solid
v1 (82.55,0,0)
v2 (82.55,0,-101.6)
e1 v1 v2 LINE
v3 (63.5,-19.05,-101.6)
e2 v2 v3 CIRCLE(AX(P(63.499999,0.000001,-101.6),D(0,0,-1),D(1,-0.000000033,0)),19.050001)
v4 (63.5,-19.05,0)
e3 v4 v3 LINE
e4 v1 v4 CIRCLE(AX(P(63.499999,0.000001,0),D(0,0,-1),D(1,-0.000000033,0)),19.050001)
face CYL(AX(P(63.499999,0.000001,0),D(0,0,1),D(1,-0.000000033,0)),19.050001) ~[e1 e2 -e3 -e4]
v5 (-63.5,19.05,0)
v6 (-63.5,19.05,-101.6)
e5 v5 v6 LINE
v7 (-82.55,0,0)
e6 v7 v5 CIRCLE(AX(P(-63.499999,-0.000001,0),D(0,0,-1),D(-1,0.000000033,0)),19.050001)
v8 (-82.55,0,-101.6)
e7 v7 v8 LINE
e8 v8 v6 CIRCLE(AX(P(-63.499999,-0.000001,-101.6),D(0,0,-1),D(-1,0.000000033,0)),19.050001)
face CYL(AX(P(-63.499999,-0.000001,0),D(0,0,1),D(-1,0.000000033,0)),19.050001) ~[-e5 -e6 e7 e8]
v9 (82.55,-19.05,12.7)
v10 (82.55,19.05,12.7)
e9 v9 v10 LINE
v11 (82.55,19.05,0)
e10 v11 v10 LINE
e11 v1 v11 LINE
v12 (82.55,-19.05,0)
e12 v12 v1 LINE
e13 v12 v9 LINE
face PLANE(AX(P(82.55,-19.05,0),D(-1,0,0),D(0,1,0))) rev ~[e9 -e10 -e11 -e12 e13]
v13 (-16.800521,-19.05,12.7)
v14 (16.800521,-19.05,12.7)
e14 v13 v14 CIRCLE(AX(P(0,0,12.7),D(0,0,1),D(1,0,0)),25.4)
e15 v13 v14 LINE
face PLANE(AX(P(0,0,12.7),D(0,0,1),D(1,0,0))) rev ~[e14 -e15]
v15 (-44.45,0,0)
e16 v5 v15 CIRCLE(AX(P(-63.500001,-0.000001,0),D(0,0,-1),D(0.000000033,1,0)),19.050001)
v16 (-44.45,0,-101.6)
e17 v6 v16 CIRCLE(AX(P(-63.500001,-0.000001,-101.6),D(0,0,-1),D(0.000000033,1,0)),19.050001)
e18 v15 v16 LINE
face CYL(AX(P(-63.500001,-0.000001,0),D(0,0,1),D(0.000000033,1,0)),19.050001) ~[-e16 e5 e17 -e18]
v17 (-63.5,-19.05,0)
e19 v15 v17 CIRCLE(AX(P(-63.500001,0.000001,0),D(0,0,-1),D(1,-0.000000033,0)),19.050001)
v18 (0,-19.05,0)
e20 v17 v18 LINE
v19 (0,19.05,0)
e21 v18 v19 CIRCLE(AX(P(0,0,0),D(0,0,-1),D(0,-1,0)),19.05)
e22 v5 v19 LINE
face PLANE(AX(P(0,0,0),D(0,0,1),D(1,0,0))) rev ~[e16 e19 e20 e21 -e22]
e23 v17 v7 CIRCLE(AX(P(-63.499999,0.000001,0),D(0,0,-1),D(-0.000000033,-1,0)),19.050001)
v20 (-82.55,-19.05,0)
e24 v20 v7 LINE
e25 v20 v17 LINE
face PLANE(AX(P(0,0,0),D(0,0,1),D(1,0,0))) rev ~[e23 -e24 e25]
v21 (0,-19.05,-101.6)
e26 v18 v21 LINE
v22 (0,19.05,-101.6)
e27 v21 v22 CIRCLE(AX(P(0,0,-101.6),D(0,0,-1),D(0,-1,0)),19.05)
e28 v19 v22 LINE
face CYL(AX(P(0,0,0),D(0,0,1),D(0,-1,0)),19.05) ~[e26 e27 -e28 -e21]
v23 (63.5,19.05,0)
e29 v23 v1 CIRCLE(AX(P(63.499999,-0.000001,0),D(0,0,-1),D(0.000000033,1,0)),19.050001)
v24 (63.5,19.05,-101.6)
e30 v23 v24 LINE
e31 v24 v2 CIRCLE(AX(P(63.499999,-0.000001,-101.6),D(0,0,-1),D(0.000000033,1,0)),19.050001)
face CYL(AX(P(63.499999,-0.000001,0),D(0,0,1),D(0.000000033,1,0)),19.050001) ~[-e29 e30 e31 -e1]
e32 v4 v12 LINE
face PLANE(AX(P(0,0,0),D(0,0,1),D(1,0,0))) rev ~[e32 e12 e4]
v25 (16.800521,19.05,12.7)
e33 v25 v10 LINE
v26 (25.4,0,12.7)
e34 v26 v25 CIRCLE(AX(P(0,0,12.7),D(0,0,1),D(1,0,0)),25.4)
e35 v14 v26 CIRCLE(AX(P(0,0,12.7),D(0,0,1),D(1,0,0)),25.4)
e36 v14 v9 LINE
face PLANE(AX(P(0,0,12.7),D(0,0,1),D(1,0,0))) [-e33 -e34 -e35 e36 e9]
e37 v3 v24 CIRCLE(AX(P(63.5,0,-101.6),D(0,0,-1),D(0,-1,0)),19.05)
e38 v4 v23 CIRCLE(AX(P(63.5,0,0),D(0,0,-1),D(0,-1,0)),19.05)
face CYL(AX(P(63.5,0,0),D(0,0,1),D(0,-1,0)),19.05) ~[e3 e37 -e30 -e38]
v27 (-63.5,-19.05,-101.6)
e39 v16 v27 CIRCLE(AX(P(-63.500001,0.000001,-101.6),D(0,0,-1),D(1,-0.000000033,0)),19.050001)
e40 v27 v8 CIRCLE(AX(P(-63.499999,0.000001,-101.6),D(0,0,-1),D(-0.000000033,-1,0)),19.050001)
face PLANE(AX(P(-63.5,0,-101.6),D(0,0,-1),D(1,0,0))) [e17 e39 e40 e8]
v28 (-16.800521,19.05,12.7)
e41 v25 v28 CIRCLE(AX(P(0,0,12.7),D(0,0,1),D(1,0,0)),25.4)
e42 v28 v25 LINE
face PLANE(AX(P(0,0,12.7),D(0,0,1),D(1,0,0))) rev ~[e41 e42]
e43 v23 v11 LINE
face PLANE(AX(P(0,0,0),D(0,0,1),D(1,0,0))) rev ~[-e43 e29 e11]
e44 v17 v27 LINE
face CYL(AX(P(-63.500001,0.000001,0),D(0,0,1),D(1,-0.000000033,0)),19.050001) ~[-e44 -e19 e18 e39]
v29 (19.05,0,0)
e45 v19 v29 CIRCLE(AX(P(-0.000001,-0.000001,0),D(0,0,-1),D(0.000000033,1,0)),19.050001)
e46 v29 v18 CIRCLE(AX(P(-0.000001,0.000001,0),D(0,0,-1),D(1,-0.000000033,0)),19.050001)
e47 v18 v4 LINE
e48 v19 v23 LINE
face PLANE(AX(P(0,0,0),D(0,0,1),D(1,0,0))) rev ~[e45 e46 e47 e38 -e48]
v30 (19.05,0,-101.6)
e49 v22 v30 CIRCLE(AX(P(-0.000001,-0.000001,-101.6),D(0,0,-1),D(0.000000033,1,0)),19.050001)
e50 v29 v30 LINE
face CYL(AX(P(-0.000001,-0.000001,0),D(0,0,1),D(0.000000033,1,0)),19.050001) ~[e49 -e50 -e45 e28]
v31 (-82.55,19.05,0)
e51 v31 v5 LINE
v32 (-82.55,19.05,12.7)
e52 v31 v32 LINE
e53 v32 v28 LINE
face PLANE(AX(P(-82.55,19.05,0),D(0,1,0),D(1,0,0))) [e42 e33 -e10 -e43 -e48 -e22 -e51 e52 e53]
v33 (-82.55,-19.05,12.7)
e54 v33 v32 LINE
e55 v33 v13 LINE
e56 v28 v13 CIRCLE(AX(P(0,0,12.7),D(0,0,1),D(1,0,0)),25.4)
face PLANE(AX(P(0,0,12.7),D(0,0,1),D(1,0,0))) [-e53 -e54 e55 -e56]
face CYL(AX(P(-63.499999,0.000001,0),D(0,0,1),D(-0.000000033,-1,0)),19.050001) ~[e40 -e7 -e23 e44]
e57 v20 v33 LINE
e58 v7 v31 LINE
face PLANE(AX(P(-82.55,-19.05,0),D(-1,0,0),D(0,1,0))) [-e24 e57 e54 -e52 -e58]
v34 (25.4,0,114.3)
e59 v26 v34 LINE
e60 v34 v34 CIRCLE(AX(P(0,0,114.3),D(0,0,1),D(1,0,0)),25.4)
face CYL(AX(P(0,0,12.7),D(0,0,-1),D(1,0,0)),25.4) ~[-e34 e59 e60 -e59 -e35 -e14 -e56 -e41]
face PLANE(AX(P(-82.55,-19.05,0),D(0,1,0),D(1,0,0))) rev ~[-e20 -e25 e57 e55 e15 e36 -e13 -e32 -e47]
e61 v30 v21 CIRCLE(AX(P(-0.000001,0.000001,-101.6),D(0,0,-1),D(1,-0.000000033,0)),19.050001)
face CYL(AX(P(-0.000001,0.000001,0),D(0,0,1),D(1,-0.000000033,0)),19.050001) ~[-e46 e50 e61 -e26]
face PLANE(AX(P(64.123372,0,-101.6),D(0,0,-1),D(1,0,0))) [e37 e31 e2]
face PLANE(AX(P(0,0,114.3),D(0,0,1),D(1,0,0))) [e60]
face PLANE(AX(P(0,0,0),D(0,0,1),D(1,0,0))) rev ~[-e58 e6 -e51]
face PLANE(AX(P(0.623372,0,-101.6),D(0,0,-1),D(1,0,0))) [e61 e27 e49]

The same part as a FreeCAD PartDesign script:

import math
import FreeCAD as App
import Part
import Sketcher
Q = App.Units.Quantity


def add_polygon(sketch, points):
    """Adds a closed chain of lines whose ends are joined by coincident constraints."""
    first, n = sketch.GeometryCount, len(points)
    for a, b in zip(points, points[1:] + points[:1]):
        sketch.addGeometry(Part.LineSegment(App.Vector(*a, 0), App.Vector(*b, 0)), False)
    for i in range(n):
        sketch.addConstraint(Sketcher.Constraint("Coincident", first + i, 2, first + (i + 1) % n, 1))

doc = App.newDocument("Part")
body = doc.addObject("PartDesign::Body", "Body")

sketch1 = body.newObject("Sketcher::SketchObject", "Sketch")
sketch1.AttachmentSupport = (doc.getObject("XY_Plane"), [""])
sketch1.MapMode = "FlatFace"
add_polygon(sketch1, [(-83, 19), (-83, -19), (83, -19), (83, 19)])
sketch1.addConstraint([
    Sketcher.Constraint("Vertical", 0),
    Sketcher.Constraint("Horizontal", 1),
    Sketcher.Constraint("Vertical", 2),
    Sketcher.Constraint("Horizontal", 3),
    Sketcher.Constraint("Symmetric", 0, 2, 2, 2, -1, 1),
    Sketcher.Constraint("DistanceX", 1, 1, 1, 2, Q("6.5 in")),
    Sketcher.Constraint("DistanceY", 0, 2, 0, 1, Q("1.5 in")),
])
pad1 = body.newObject("PartDesign::Pad", "Pad")
pad1.Profile = sketch1
pad1.Length = Q("0.5 in")

sketch2 = body.newObject("Sketcher::SketchObject", "Sketch001")
sketch2.AttachmentSupport = (doc.getObject("XY_Plane"), [""])
sketch2.MapMode = "FlatFace"
sketch2.AttachmentOffset = App.Placement(App.Vector(0, 0, 0.5 * 25.4), App.Rotation())
sketch2.addGeometry(Part.Circle(App.Vector(0, 0, 0), App.Vector(0, 0, 1), 25), False)
sketch2.addConstraint([
    Sketcher.Constraint("Coincident", 0, 3, -1, 1),
    Sketcher.Constraint("Diameter", 0, Q("2 in")),
])
pad2 = body.newObject("PartDesign::Pad", "Pad001")
pad2.Profile = sketch2
pad2.Length = Q("4 in")

sketch3 = body.newObject("Sketcher::SketchObject", "Sketch002")
sketch3.AttachmentSupport = (doc.getObject("XY_Plane"), [""])
sketch3.MapMode = "FlatFace"
sketch3.addGeometry([
    Part.ArcOfCircle(Part.Circle(App.Vector(0, 0, 0), App.Vector(0, 0, 1), 19), math.radians(0), math.radians(90)),
    Part.ArcOfCircle(Part.Circle(App.Vector(0, 0, 0), App.Vector(0, 0, 1), 19), math.radians(-90), math.radians(0)),
    Part.ArcOfCircle(Part.Circle(App.Vector(0, 0, 0), App.Vector(0, 0, 1), 19), math.radians(90), math.radians(270)),
    Part.ArcOfCircle(Part.Circle(App.Vector(63, 0, 0), App.Vector(0, 0, 1), 19), math.radians(-90), math.radians(0)),
    Part.ArcOfCircle(Part.Circle(App.Vector(64, 0, 0), App.Vector(0, 0, 1), 19), math.radians(90), math.radians(270)),
    Part.ArcOfCircle(Part.Circle(App.Vector(63, 0, 0), App.Vector(0, 0, 1), 19), math.radians(0), math.radians(90)),
    Part.ArcOfCircle(Part.Circle(App.Vector(-64, 0, 0), App.Vector(0, 0, 1), 19), math.radians(-90), math.radians(0)),
    Part.ArcOfCircle(Part.Circle(App.Vector(-63, 0, 0), App.Vector(0, 0, 1), 19), math.radians(-180), math.radians(-90)),
    Part.ArcOfCircle(Part.Circle(App.Vector(-63, 0, 0), App.Vector(0, 0, 1), 19), math.radians(90), math.radians(180)),
    Part.ArcOfCircle(Part.Circle(App.Vector(-64, 0, 0), App.Vector(0, 0, 1), 19), math.radians(0), math.radians(90)),
], False)
sketch3.addConstraint([
    Sketcher.Constraint("Tangent", 0, 1, 1, 2),
    Sketcher.Constraint("Tangent", 1, 1, 2, 2),
    Sketcher.Constraint("Tangent", 2, 1, 0, 2),
    Sketcher.Constraint("Tangent", 3, 1, 4, 2),
    Sketcher.Constraint("Tangent", 4, 1, 5, 2),
    Sketcher.Constraint("Tangent", 5, 1, 3, 2),
    Sketcher.Constraint("Tangent", 6, 1, 7, 2),
    Sketcher.Constraint("Tangent", 7, 1, 8, 2),
    Sketcher.Constraint("Tangent", 8, 1, 9, 2),
    Sketcher.Constraint("Tangent", 9, 1, 6, 2),
    Sketcher.Constraint("Coincident", 0, 3, -1, 1),
    Sketcher.Constraint("Equal", 2, 3),
    Sketcher.Constraint("Equal", 5, 6),
    Sketcher.Constraint("Equal", 6, 7),
    Sketcher.Constraint("Symmetric", 3, 3, 6, 3, -1, 1),
    Sketcher.Constraint("Symmetric", 3, 1, 6, 1, -2),
    Sketcher.Constraint("PointOnObject", 0, 1, -1),
    Sketcher.Constraint("PointOnObject", 1, 1, -2),
    Sketcher.Constraint("PointOnObject", 2, 1, -2),
    Sketcher.Constraint("PointOnObject", 5, 1, -1),
    Sketcher.Constraint("PointOnObject", 7, 1, -1),
    Sketcher.Constraint("PointOnObject", 9, 1, -1),
    Sketcher.Constraint("Vertical", 5, 3, 3, 1),
    Sketcher.Constraint("Vertical", 3, 1, 4, 1),
    Sketcher.Constraint("Vertical", 6, 1, 8, 1),
    Sketcher.Constraint("Radius", 0, Q("0.75 in")),
    Sketcher.Constraint("DistanceX", 6, 3, 3, 3, Q("5 in")),
])
pad3 = body.newObject("PartDesign::Pad", "Pad002")
pad3.Profile = sketch3
pad3.Length = Q("4 in")
pad3.Reversed = True

doc.recompute()
